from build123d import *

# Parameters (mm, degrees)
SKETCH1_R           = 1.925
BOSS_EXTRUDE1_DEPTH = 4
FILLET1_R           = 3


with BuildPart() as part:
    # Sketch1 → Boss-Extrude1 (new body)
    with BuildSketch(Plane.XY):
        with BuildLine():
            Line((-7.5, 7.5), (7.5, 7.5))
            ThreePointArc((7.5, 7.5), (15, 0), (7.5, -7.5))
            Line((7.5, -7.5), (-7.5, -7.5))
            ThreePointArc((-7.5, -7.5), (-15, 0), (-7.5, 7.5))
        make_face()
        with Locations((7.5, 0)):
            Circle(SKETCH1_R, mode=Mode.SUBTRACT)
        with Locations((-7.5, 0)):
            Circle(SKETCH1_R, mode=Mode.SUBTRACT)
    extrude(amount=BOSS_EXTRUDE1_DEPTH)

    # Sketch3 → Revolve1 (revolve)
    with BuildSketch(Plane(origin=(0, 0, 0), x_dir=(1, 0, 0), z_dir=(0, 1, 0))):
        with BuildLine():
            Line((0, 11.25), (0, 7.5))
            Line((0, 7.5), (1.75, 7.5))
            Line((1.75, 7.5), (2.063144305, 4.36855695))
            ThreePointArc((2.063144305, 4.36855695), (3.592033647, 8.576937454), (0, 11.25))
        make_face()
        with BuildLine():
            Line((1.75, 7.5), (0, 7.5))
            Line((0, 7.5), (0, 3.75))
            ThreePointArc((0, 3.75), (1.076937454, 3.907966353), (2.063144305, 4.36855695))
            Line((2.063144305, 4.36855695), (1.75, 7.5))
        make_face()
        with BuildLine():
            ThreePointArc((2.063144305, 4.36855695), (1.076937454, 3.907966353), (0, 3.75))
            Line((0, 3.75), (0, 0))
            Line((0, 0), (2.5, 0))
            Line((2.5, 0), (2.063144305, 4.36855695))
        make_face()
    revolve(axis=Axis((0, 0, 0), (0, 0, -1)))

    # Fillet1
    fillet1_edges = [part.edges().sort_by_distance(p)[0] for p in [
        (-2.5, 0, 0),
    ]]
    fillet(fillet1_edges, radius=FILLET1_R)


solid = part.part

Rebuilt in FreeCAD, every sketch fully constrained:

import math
import FreeCAD as App
import Part
import Sketcher
from FreeCAD import Vector


def edges_at(feature, points):
    """Names of the edges that pass closest to the given points."""
    edges = feature.Shape.Edges
    near = lambda p: min(range(len(edges)), key=lambda i: edges[i].distToShape(Part.Vertex(*p))[0])
    return sorted({f"Edge{near(p) + 1}" for p in points})

doc = App.newDocument("Part")
body = doc.addObject("PartDesign::Body", "Body")

# Sketch on XY plane
sketch1 = body.newObject("Sketcher::SketchObject", "Sketch")
sketch1.AttachmentSupport = (doc.getObject("XY_Plane"), [""])
sketch1.MapMode = "FlatFace"
sketch1.addGeometry([
    Part.LineSegment(Vector(7.5, 7.5, 0), Vector(-7.5, 7.5, 0)),  # 0
    Part.ArcOfCircle(Part.Circle(Vector(-7.5, 0, 0), Vector(0, 0, 1), 7.5), math.radians(90), math.radians(270)),  # 1
    Part.LineSegment(Vector(-7.5, -7.5, 0), Vector(7.5, -7.5, 0)),  # 2
    Part.ArcOfCircle(Part.Circle(Vector(7.5, 0, 0), Vector(0, 0, 1), 7.5), math.radians(-90), math.radians(90)),  # 3
    Part.Circle(Vector(7.5, 0, 0), Vector(0, 0, 1), 1.9),  # 4
    Part.Circle(Vector(-7.5, 0, 0), Vector(0, 0, 1), 1.9),  # 5
], False)
sketch1.addConstraint([
    Sketcher.Constraint("Tangent", 0, 2, 1, 1),
    Sketcher.Constraint("Tangent", 1, 2, 2, 1),
    Sketcher.Constraint("Tangent", 2, 2, 3, 1),
    Sketcher.Constraint("Tangent", 3, 2, 0, 1),
    Sketcher.Constraint("Horizontal", 0),
    Sketcher.Constraint("Horizontal", 2),
    Sketcher.Constraint("Coincident", 4, 3, 3, 3),
    Sketcher.Constraint("Coincident", 5, 3, 1, 3),
    Sketcher.Constraint("Equal", 4, 5),
    Sketcher.Constraint("Symmetric", 1, 3, 3, 3, -1, 1),
    Sketcher.Constraint("Radius", 1, 7.5),
    Sketcher.Constraint("Diameter", 4, 3.85),
    Sketcher.Constraint("DistanceX", 0, 2, 0, 1, 15.0),
])
pad1 = body.newObject("PartDesign::Pad", "Pad")
pad1.Profile = sketch1
pad1.Length = 4

# Sketch on XZ plane
sketch2 = body.newObject("Sketcher::SketchObject", "Sketch001")
sketch2.AttachmentSupport = (doc.getObject("XZ_Plane"), [""])
sketch2.MapMode = "FlatFace"
sketch2.addGeometry([
    Part.LineSegment(Vector(0, -11.2, 0), Vector(0, 0, 0)),
    Part.LineSegment(Vector(0, 0, 0), Vector(2.5, 0, 0)),
    Part.LineSegment(Vector(2.5, 0, 0), Vector(2.1, -4.4, 0)),
    Part.ArcOfCircle(Part.Circle(Vector(0, -7.5, 0), Vector(0, 0, 1), 3.8), math.radians(-90), math.radians(57)),
], False)
sketch2.addConstraint([
    Sketcher.Constraint("Coincident", 0, 2, 1, 1),
    Sketcher.Constraint("Coincident", 1, 2, 2, 1),
    Sketcher.Constraint("Coincident", 2, 2, 3, 2),
    Sketcher.Constraint("Coincident", 3, 1, 0, 1),
    Sketcher.Constraint("Vertical", 0),
    Sketcher.Constraint("Horizontal", 1),
    Sketcher.Constraint("Coincident", 0, 2, -1, 1),
    Sketcher.Constraint("PointOnObject", 3, 3, -2),
    Sketcher.Constraint("Radius", 3, 3.75),
    Sketcher.Constraint("DistanceX", 1, 1, 1, 2, 2.5),
    Sketcher.Constraint("DistanceY", 0, 1, 0, 2, 11.25),
    Sketcher.Constraint("Distance", 2, 4.390345),
])
revolution = body.newObject("PartDesign::Revolution", "Revolution")
revolution.Profile = sketch2
revolution.ReferenceAxis = (sketch2, ["V_Axis"])
revolution.Angle = 360
doc.recompute()

fillet = body.newObject("PartDesign::Fillet", "Fillet")
fillet.Base = (revolution, edges_at(revolution, [(-2.5, 0, 0)]))
fillet.Radius = 3

doc.recompute()
